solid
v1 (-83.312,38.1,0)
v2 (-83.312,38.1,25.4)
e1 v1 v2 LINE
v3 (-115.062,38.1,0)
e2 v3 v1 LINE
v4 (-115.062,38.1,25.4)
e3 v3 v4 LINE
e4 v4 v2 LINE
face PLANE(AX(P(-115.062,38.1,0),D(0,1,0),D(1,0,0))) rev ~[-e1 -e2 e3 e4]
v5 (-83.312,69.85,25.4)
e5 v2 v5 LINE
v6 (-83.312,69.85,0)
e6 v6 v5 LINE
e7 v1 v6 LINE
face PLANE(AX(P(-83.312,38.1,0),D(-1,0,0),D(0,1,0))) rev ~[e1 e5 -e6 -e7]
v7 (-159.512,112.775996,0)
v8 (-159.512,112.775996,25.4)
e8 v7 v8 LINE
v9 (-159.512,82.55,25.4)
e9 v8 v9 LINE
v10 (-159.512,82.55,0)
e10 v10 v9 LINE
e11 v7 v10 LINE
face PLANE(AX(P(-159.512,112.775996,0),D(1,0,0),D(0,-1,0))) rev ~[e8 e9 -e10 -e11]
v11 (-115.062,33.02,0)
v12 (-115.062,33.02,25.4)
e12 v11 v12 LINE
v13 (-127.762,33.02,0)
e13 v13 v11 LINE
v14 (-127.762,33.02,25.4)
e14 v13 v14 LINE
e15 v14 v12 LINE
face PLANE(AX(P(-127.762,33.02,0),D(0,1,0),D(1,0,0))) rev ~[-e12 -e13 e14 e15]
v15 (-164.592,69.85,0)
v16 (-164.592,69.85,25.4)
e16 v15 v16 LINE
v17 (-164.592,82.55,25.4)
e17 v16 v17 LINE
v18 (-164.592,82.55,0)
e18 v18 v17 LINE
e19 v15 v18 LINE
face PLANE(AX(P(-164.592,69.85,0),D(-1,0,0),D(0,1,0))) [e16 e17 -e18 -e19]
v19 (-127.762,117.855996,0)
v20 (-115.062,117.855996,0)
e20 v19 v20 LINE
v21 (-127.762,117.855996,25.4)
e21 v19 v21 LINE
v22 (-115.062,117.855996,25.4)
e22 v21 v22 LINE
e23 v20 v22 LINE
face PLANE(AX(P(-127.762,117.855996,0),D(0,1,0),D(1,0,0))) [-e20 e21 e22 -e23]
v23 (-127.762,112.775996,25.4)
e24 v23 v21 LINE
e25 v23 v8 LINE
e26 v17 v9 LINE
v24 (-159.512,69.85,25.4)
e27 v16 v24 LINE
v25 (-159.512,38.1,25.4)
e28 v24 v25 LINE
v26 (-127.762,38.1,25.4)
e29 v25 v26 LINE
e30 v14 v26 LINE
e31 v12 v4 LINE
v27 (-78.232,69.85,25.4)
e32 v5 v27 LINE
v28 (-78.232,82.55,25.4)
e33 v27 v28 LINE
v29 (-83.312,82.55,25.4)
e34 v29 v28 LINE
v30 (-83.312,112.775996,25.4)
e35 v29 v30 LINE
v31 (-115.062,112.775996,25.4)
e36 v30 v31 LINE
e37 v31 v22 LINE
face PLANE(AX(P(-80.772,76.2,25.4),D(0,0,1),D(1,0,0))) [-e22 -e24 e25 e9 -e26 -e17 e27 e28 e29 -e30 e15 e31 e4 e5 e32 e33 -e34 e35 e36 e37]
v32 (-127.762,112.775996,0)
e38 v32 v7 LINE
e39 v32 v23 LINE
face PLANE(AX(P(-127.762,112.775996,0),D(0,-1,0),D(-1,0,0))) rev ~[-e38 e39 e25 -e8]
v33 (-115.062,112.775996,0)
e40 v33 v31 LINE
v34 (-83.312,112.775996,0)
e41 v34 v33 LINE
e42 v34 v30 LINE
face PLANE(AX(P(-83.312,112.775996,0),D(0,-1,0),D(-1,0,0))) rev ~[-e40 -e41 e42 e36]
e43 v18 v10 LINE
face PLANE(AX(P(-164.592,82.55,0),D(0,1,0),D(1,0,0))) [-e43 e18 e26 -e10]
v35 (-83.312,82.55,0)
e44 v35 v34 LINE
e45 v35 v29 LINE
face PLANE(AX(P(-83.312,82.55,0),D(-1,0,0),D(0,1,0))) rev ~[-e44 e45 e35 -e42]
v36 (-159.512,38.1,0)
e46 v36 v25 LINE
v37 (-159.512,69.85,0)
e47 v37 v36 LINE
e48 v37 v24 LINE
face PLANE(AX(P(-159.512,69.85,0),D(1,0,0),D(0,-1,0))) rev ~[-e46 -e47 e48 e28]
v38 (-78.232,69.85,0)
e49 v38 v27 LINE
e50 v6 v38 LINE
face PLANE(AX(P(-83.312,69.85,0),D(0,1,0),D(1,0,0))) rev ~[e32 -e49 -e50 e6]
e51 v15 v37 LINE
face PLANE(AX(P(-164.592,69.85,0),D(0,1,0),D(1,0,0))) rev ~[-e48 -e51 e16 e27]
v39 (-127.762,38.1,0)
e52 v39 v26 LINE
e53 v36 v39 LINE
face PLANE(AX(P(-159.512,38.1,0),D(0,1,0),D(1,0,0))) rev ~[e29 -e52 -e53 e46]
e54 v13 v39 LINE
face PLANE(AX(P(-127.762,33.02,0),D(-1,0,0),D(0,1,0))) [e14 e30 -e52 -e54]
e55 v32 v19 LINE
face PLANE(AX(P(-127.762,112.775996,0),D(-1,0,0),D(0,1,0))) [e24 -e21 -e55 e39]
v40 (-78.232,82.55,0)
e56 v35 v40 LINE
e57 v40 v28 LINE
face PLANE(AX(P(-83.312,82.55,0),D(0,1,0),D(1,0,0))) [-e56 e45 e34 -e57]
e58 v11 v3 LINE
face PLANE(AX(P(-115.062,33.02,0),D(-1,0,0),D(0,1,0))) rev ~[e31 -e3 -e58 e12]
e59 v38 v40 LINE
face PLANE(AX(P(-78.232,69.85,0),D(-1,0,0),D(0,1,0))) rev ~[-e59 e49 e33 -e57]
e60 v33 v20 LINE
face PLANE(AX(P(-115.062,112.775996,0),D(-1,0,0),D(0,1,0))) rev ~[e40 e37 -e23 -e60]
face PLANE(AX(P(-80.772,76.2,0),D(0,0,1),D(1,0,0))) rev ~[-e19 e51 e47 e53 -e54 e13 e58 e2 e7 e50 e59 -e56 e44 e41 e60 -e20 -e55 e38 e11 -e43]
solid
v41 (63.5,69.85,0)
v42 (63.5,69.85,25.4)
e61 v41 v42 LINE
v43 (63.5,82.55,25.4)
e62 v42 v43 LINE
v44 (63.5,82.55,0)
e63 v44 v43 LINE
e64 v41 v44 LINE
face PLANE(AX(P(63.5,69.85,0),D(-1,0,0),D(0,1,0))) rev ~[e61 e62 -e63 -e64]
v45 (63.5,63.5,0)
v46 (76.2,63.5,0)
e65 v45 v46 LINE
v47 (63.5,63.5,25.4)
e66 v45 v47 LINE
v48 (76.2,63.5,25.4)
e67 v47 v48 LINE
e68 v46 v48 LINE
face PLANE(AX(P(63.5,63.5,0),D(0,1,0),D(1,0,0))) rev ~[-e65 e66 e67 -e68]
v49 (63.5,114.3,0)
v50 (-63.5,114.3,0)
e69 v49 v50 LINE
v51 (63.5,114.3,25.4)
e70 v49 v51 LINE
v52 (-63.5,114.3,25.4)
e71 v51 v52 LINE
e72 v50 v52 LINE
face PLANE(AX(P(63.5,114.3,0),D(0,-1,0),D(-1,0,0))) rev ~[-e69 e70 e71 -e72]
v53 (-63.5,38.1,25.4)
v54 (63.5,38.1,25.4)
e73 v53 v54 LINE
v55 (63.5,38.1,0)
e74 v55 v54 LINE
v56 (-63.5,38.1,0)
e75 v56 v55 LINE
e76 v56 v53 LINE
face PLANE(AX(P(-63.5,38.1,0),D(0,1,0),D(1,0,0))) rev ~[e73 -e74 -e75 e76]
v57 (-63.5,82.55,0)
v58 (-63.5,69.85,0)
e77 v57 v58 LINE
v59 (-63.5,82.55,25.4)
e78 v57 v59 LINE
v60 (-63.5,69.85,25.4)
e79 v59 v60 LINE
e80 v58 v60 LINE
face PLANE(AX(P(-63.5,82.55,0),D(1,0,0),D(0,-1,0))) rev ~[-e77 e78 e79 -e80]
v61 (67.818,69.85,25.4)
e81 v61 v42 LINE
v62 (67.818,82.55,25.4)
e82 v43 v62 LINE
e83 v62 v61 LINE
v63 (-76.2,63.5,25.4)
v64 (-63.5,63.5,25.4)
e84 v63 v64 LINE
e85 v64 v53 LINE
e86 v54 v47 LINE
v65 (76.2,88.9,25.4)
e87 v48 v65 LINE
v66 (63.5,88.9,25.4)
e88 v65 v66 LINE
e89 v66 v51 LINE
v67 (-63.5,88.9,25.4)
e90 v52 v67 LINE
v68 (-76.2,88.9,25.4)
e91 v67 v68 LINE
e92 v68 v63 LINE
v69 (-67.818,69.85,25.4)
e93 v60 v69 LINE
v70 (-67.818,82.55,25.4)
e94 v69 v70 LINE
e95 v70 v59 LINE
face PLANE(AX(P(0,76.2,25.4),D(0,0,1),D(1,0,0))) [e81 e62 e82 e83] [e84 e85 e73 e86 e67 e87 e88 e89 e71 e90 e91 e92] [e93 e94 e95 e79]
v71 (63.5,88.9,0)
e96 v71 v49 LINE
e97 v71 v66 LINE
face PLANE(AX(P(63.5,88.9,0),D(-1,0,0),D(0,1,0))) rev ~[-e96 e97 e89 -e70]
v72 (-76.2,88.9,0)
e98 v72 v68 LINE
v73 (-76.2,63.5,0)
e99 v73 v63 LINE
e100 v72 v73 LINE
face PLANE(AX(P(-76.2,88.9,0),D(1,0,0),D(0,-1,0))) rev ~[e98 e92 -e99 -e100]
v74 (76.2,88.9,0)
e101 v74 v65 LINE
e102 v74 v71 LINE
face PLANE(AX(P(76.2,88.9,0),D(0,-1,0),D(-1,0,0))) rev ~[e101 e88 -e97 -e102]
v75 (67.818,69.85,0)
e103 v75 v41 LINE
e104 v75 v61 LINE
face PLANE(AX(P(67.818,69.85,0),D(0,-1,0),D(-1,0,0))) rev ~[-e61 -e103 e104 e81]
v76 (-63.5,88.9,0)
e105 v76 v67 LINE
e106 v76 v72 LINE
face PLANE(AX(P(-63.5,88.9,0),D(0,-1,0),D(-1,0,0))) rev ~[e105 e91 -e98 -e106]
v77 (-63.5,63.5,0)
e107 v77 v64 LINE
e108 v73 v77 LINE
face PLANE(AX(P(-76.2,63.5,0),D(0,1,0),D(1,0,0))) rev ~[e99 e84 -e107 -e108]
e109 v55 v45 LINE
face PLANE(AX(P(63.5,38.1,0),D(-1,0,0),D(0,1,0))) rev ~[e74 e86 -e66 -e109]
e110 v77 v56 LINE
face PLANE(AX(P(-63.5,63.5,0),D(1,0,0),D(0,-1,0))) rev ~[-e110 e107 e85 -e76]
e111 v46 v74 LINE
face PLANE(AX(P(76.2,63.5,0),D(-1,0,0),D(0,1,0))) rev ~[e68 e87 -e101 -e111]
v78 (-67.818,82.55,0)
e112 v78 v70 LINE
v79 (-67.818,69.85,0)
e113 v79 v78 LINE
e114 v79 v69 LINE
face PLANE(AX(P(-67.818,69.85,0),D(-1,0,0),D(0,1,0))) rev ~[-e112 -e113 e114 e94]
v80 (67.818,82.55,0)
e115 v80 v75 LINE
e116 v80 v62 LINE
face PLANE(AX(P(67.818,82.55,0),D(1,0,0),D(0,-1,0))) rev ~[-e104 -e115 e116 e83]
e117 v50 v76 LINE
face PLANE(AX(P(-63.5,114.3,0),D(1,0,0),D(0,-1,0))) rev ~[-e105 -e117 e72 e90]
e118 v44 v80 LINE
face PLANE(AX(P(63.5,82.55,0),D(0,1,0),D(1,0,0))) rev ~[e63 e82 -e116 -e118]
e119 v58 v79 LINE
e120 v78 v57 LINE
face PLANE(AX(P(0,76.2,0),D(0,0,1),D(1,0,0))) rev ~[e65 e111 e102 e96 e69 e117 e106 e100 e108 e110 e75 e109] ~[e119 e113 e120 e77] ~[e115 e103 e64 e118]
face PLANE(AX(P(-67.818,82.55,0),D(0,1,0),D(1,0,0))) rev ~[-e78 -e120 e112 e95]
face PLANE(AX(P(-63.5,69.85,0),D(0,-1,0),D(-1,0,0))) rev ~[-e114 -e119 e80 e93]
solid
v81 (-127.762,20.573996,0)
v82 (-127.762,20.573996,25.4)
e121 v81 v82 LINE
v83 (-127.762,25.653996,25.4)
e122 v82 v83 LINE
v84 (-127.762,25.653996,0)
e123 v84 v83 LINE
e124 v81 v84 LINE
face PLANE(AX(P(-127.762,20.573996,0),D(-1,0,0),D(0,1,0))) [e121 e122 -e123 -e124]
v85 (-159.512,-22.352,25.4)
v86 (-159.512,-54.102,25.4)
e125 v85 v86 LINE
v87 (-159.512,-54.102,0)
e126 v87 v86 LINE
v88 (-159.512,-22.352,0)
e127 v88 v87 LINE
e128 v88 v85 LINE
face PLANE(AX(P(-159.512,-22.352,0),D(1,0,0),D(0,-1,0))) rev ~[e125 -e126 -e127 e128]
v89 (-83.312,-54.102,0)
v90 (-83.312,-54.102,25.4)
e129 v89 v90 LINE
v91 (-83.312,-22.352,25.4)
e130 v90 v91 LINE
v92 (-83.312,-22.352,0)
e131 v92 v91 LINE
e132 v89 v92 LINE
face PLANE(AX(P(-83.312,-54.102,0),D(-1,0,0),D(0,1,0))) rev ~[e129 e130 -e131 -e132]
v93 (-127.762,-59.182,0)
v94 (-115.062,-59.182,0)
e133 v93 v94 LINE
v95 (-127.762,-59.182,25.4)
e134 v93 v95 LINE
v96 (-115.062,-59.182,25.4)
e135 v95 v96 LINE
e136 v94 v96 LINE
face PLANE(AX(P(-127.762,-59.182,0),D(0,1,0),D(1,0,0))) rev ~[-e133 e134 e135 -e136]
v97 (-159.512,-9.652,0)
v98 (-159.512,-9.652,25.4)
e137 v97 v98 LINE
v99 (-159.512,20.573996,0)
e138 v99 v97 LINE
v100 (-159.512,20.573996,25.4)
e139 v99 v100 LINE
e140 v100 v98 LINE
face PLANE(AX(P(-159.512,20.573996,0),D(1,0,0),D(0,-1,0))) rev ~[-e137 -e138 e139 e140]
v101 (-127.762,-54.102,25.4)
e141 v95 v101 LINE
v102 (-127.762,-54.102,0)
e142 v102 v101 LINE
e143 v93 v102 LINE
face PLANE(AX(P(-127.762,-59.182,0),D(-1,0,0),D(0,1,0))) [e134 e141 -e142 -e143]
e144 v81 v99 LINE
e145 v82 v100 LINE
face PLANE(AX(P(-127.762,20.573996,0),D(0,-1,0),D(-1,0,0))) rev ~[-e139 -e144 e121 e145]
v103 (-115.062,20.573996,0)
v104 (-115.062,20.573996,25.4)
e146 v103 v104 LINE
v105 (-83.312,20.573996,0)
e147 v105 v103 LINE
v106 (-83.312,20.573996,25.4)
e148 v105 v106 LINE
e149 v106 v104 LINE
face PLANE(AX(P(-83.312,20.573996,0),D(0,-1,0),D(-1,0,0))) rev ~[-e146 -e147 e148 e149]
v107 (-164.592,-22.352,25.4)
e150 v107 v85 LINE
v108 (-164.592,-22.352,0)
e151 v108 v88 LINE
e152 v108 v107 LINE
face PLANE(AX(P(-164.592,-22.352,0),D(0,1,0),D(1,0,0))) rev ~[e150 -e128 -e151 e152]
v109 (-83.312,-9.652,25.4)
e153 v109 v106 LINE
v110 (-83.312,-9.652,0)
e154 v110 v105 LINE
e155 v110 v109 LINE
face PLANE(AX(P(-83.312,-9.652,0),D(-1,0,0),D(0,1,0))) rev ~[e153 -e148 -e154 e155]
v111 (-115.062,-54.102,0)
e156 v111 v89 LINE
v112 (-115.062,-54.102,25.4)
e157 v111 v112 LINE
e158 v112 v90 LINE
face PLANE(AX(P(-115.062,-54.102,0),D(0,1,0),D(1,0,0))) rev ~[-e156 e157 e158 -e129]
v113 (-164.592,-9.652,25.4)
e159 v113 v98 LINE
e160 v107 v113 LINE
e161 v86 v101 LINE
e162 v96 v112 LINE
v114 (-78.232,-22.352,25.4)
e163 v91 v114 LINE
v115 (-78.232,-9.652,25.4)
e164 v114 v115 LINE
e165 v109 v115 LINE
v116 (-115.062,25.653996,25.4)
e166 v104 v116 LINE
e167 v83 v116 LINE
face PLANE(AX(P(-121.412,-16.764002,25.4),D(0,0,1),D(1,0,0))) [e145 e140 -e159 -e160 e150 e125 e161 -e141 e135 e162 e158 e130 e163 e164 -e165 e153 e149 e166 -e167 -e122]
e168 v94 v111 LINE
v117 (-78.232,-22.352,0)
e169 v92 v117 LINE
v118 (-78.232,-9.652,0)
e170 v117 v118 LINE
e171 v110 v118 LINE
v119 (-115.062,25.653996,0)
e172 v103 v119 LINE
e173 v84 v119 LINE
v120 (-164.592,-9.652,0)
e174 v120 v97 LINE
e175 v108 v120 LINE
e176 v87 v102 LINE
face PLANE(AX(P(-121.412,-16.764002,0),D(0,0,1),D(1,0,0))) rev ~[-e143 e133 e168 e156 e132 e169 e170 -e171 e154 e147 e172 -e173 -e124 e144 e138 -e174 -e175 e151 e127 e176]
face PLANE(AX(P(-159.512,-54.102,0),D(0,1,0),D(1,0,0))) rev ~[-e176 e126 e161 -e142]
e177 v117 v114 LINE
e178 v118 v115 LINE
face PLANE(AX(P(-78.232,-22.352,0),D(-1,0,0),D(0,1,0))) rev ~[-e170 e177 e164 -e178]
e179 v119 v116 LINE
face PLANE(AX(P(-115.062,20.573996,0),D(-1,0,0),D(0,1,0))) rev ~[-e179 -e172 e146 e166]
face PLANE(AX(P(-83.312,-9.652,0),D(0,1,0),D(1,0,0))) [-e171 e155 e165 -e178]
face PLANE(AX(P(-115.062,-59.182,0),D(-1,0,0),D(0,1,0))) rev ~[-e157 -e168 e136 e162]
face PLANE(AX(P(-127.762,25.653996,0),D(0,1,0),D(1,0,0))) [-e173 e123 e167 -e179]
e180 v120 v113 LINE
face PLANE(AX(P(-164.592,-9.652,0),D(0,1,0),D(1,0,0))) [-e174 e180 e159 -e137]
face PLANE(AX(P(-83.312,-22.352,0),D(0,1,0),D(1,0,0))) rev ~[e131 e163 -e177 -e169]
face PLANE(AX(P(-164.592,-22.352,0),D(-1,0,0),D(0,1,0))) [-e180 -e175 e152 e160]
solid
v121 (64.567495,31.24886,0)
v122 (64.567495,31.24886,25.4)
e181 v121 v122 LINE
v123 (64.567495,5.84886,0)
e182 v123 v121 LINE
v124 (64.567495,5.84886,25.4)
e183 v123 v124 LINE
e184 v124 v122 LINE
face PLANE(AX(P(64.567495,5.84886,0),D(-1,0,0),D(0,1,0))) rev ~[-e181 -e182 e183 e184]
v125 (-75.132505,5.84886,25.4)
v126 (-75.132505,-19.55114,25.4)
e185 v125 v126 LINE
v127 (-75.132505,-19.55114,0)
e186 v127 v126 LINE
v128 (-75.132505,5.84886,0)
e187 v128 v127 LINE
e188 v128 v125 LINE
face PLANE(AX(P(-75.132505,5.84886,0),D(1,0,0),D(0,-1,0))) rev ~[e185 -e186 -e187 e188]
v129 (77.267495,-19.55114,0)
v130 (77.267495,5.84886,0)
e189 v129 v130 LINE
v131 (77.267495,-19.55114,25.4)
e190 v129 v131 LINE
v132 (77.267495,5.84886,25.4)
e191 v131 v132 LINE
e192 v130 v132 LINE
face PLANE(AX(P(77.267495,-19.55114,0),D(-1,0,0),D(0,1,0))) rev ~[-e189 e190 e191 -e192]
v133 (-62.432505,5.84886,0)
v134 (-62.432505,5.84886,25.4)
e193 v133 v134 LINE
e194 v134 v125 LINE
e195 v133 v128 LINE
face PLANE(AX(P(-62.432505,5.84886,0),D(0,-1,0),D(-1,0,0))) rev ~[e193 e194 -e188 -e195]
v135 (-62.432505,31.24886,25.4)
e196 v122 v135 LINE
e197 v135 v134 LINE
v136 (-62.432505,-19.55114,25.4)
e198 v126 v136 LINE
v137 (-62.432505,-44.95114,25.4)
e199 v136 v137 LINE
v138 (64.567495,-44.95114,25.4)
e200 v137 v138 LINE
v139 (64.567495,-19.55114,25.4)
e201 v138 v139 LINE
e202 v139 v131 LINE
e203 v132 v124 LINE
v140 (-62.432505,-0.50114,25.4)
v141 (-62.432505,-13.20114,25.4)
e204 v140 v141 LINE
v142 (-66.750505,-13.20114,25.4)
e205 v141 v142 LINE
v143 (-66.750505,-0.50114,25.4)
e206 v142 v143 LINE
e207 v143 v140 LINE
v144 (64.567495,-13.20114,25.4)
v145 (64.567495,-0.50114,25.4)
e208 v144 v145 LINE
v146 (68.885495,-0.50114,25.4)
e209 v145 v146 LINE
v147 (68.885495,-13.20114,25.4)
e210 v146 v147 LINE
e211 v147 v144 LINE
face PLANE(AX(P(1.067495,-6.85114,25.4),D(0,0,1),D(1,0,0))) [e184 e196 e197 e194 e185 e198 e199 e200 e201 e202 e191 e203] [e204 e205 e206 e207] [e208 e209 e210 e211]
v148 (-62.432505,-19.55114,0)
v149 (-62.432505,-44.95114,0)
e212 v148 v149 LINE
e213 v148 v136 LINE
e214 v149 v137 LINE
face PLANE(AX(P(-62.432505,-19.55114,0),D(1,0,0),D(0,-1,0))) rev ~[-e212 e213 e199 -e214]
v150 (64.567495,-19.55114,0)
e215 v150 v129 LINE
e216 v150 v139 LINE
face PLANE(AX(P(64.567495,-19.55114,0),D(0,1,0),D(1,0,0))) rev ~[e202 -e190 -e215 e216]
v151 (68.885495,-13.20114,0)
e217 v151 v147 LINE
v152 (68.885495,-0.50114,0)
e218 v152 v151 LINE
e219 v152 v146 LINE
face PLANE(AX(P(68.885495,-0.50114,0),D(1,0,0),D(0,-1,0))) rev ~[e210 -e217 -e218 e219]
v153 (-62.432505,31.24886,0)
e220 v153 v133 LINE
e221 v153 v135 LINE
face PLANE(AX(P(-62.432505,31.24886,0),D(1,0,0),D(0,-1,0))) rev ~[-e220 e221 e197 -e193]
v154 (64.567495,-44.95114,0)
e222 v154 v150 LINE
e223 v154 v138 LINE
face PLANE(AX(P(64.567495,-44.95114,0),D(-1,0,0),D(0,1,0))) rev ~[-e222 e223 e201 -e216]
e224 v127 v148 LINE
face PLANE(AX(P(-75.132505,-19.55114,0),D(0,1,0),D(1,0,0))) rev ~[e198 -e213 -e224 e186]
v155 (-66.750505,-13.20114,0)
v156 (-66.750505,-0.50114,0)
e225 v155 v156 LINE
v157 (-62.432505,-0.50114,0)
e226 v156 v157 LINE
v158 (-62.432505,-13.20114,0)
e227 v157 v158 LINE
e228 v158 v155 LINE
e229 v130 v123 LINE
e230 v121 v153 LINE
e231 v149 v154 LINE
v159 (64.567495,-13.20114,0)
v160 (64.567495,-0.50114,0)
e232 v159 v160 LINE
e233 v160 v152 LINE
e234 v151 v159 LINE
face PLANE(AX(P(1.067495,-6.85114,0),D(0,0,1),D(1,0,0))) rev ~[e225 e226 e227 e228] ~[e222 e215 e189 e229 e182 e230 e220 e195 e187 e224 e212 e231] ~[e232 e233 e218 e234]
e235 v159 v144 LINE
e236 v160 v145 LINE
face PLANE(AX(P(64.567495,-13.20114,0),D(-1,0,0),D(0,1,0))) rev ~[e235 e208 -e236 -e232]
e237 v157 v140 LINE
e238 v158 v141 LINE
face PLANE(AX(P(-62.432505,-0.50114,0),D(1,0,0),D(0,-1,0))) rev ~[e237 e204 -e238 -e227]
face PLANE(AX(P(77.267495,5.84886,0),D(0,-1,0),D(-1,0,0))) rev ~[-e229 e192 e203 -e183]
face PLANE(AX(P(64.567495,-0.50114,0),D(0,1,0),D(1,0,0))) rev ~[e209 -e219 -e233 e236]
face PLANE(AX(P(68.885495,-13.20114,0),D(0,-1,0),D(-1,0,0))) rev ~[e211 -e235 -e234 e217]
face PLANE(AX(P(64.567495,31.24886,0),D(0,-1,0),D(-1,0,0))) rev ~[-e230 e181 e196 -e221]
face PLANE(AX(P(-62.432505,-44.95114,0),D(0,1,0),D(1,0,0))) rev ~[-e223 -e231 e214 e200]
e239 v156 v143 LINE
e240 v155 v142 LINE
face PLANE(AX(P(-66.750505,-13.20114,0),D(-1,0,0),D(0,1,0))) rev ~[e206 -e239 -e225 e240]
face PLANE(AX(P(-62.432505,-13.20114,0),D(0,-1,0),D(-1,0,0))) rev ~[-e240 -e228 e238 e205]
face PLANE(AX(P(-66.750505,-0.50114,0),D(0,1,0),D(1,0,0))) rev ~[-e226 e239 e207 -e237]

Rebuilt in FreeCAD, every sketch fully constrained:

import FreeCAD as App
import Part
import Sketcher
Q = App.Units.Quantity

doc = App.newDocument("Part")
body = doc.addObject("PartDesign::Body", "Body")
body.AllowCompound = True

sketch1 = body.newObject("Sketcher::SketchObject", "Sketch")
sketch1.AttachmentSupport = (doc.getObject("XY_Plane"), [""])
sketch1.MapMode = "FlatFace"
sketch1.addGeometry(Part.LineSegment(App.Vector(-63.5, 38.1, 0), App.Vector(63.5, 38.1, 0)), False)
sketch1.addGeometry(Part.LineSegment(App.Vector(63.5, 38.1, 0), App.Vector(63.5, 63.5, 0)), False)
sketch1.addGeometry(Part.LineSegment(App.Vector(63.5, 63.5, 0), App.Vector(76.2, 63.5, 0)), False)
sketch1.addGeometry(Part.LineSegment(App.Vector(76.2, 63.5, 0), App.Vector(76.2, 88.9, 0)), False)
sketch1.addGeometry(Part.LineSegment(App.Vector(76.2, 88.9, 0), App.Vector(63.5, 88.9, 0)), False)
sketch1.addGeometry(Part.LineSegment(App.Vector(63.5, 88.9, 0), App.Vector(63.5, 114.3, 0)), False)
sketch1.addGeometry(Part.LineSegment(App.Vector(63.5, 114.3, 0), App.Vector(-63.5, 114.3, 0)), False)
sketch1.addGeometry(Part.LineSegment(App.Vector(-63.5, 114.3, 0), App.Vector(-63.5, 88.9, 0)), False)
sketch1.addGeometry(Part.LineSegment(App.Vector(-63.5, 88.9, 0), App.Vector(-76.2, 88.9, 0)), False)
sketch1.addGeometry(Part.LineSegment(App.Vector(-76.2, 88.9, 0), App.Vector(-76.2, 63.5, 0)), False)
sketch1.addGeometry(Part.LineSegment(App.Vector(-76.2, 63.5, 0), App.Vector(-63.5, 63.5, 0)), False)
sketch1.addGeometry(Part.LineSegment(App.Vector(-63.5, 63.5, 0), App.Vector(-63.5, 38.1, 0)), False)
sketch1.addGeometry(Part.LineSegment(App.Vector(63.5, 69.8, 0), App.Vector(63.5, 82.5, 0)), False)
sketch1.addGeometry(Part.LineSegment(App.Vector(63.5, 82.5, 0), App.Vector(67.8, 82.5, 0)), False)
sketch1.addGeometry(Part.LineSegment(App.Vector(67.8, 82.5, 0), App.Vector(67.8, 69.8, 0)), False)
sketch1.addGeometry(Part.LineSegment(App.Vector(67.8, 69.8, 0), App.Vector(63.5, 69.8, 0)), False)
sketch1.addGeometry(Part.LineSegment(App.Vector(-63.5, 82.5, 0), App.Vector(-63.5, 69.8, 0)), False)
sketch1.addGeometry(Part.LineSegment(App.Vector(-63.5, 69.8, 0), App.Vector(-67.8, 69.8, 0)), False)
sketch1.addGeometry(Part.LineSegment(App.Vector(-67.8, 69.8, 0), App.Vector(-67.8, 82.5, 0)), False)
sketch1.addGeometry(Part.LineSegment(App.Vector(-67.8, 82.5, 0), App.Vector(-63.5, 82.5, 0)), False)
sketch1.addGeometry(Part.LineSegment(App.Vector(-83.3, 69.8, 0), App.Vector(-78.2, 69.8, 0)), False)
sketch1.addGeometry(Part.LineSegment(App.Vector(-78.2, 69.8, 0), App.Vector(-78.2, 82.5, 0)), False)
sketch1.addGeometry(Part.LineSegment(App.Vector(-78.2, 82.5, 0), App.Vector(-83.3, 82.5, 0)), False)
sketch1.addGeometry(Part.LineSegment(App.Vector(-83.3, 82.5, 0), App.Vector(-83.3, 112.8, 0)), False)
sketch1.addGeometry(Part.LineSegment(App.Vector(-83.3, 112.8, 0), App.Vector(-115.1, 112.8, 0)), False)
sketch1.addGeometry(Part.LineSegment(App.Vector(-115.1, 112.8, 0), App.Vector(-115.1, 117.9, 0)), False)
sketch1.addGeometry(Part.LineSegment(App.Vector(-115.1, 117.9, 0), App.Vector(-127.8, 117.9, 0)), False)
sketch1.addGeometry(Part.LineSegment(App.Vector(-127.8, 117.9, 0), App.Vector(-127.8, 112.8, 0)), False)
sketch1.addGeometry(Part.LineSegment(App.Vector(-127.8, 112.8, 0), App.Vector(-159.5, 112.8, 0)), False)
sketch1.addGeometry(Part.LineSegment(App.Vector(-159.5, 112.8, 0), App.Vector(-159.5, 82.5, 0)), False)
sketch1.addGeometry(Part.LineSegment(App.Vector(-159.5, 82.5, 0), App.Vector(-164.6, 82.5, 0)), False)
sketch1.addGeometry(Part.LineSegment(App.Vector(-164.6, 82.5, 0), App.Vector(-164.6, 69.8, 0)), False)
sketch1.addGeometry(Part.LineSegment(App.Vector(-164.6, 69.8, 0), App.Vector(-159.5, 69.8, 0)), False)
sketch1.addGeometry(Part.LineSegment(App.Vector(-159.5, 69.8, 0), App.Vector(-159.5, 38.1, 0)), False)
sketch1.addGeometry(Part.LineSegment(App.Vector(-159.5, 38.1, 0), App.Vector(-127.8, 38.1, 0)), False)
sketch1.addGeometry(Part.LineSegment(App.Vector(-127.8, 38.1, 0), App.Vector(-127.8, 33, 0)), False)
sketch1.addGeometry(Part.LineSegment(App.Vector(-127.8, 33, 0), App.Vector(-115.1, 33, 0)), False)
sketch1.addGeometry(Part.LineSegment(App.Vector(-115.1, 33, 0), App.Vector(-115.1, 38.1, 0)), False)
sketch1.addGeometry(Part.LineSegment(App.Vector(-115.1, 38.1, 0), App.Vector(-83.3, 38.1, 0)), False)
sketch1.addGeometry(Part.LineSegment(App.Vector(-83.3, 38.1, 0), App.Vector(-83.3, 69.8, 0)), False)
sketch1.addGeometry(Part.LineSegment(App.Vector(-62.4, -45, 0), App.Vector(64.6, -45, 0)), False)
sketch1.addGeometry(Part.LineSegment(App.Vector(64.6, -45, 0), App.Vector(64.6, -19.6, 0)), False)
sketch1.addGeometry(Part.LineSegment(App.Vector(64.6, -19.6, 0), App.Vector(77.3, -19.6, 0)), False)
sketch1.addGeometry(Part.LineSegment(App.Vector(77.3, -19.6, 0), App.Vector(77.3, 5.8, 0)), False)
sketch1.addGeometry(Part.LineSegment(App.Vector(77.3, 5.8, 0), App.Vector(64.6, 5.8, 0)), False)
sketch1.addGeometry(Part.LineSegment(App.Vector(64.6, 5.8, 0), App.Vector(64.6, 31.2, 0)), False)
sketch1.addGeometry(Part.LineSegment(App.Vector(64.6, 31.2, 0), App.Vector(-62.4, 31.2, 0)), False)
sketch1.addGeometry(Part.LineSegment(App.Vector(-62.4, 31.2, 0), App.Vector(-62.4, 5.8, 0)), False)
sketch1.addGeometry(Part.LineSegment(App.Vector(-62.4, 5.8, 0), App.Vector(-75.1, 5.8, 0)), False)
sketch1.addGeometry(Part.LineSegment(App.Vector(-75.1, 5.8, 0), App.Vector(-75.1, -19.6, 0)), False)
sketch1.addGeometry(Part.LineSegment(App.Vector(-75.1, -19.6, 0), App.Vector(-62.4, -19.6, 0)), False)
sketch1.addGeometry(Part.LineSegment(App.Vector(-62.4, -19.6, 0), App.Vector(-62.4, -45, 0)), False)
sketch1.addGeometry(Part.LineSegment(App.Vector(64.6, -13.2, 0), App.Vector(64.6, -0.5, 0)), False)
sketch1.addGeometry(Part.LineSegment(App.Vector(64.6, -0.5, 0), App.Vector(68.9, -0.5, 0)), False)
sketch1.addGeometry(Part.LineSegment(App.Vector(68.9, -0.5, 0), App.Vector(68.9, -13.2, 0)), False)
sketch1.addGeometry(Part.LineSegment(App.Vector(68.9, -13.2, 0), App.Vector(64.6, -13.2, 0)), False)
sketch1.addGeometry(Part.LineSegment(App.Vector(-62.4, -0.5, 0), App.Vector(-62.4, -13.2, 0)), False)
sketch1.addGeometry(Part.LineSegment(App.Vector(-62.4, -13.2, 0), App.Vector(-66.8, -13.2, 0)), False)
sketch1.addGeometry(Part.LineSegment(App.Vector(-66.8, -13.2, 0), App.Vector(-66.8, -0.5, 0)), False)
sketch1.addGeometry(Part.LineSegment(App.Vector(-66.8, -0.5, 0), App.Vector(-62.4, -0.5, 0)), False)
sketch1.addGeometry(Part.LineSegment(App.Vector(-83.3, -54.1, 0), App.Vector(-83.3, -22.4, 0)), False)
sketch1.addGeometry(Part.LineSegment(App.Vector(-83.3, -22.4, 0), App.Vector(-78.2, -22.4, 0)), False)
sketch1.addGeometry(Part.LineSegment(App.Vector(-78.2, -22.4, 0), App.Vector(-78.2, -9.7, 0)), False)
sketch1.addGeometry(Part.LineSegment(App.Vector(-78.2, -9.7, 0), App.Vector(-83.3, -9.7, 0)), False)
sketch1.addGeometry(Part.LineSegment(App.Vector(-83.3, -9.7, 0), App.Vector(-83.3, 20.6, 0)), False)
sketch1.addGeometry(Part.LineSegment(App.Vector(-83.3, 20.6, 0), App.Vector(-115.1, 20.6, 0)), False)
sketch1.addGeometry(Part.LineSegment(App.Vector(-115.1, 20.6, 0), App.Vector(-115.1, 25.7, 0)), False)
sketch1.addGeometry(Part.LineSegment(App.Vector(-115.1, 25.7, 0), App.Vector(-127.8, 25.7, 0)), False)
sketch1.addGeometry(Part.LineSegment(App.Vector(-127.8, 25.7, 0), App.Vector(-127.8, 20.6, 0)), False)
sketch1.addGeometry(Part.LineSegment(App.Vector(-127.8, 20.6, 0), App.Vector(-159.5, 20.6, 0)), False)
sketch1.addGeometry(Part.LineSegment(App.Vector(-159.5, 20.6, 0), App.Vector(-159.5, -9.7, 0)), False)
sketch1.addGeometry(Part.LineSegment(App.Vector(-159.5, -9.7, 0), App.Vector(-164.6, -9.7, 0)), False)
sketch1.addGeometry(Part.LineSegment(App.Vector(-164.6, -9.7, 0), App.Vector(-164.6, -22.4, 0)), False)
sketch1.addGeometry(Part.LineSegment(App.Vector(-164.6, -22.4, 0), App.Vector(-159.5, -22.4, 0)), False)
sketch1.addGeometry(Part.LineSegment(App.Vector(-159.5, -22.4, 0), App.Vector(-159.5, -54.1, 0)), False)
sketch1.addGeometry(Part.LineSegment(App.Vector(-159.5, -54.1, 0), App.Vector(-127.8, -54.1, 0)), False)
sketch1.addGeometry(Part.LineSegment(App.Vector(-127.8, -54.1, 0), App.Vector(-127.8, -59.2, 0)), False)
sketch1.addGeometry(Part.LineSegment(App.Vector(-127.8, -59.2, 0), App.Vector(-115.1, -59.2, 0)), False)
sketch1.addGeometry(Part.LineSegment(App.Vector(-115.1, -59.2, 0), App.Vector(-115.1, -54.1, 0)), False)
sketch1.addGeometry(Part.LineSegment(App.Vector(-115.1, -54.1, 0), App.Vector(-83.3, -54.1, 0)), False)
sketch1.addConstraint(Sketcher.Constraint("Coincident", 0, 2, 1, 1))
sketch1.addConstraint(Sketcher.Constraint("Coincident", 1, 2, 2, 1))
sketch1.addConstraint(Sketcher.Constraint("Coincident", 2, 2, 3, 1))
sketch1.addConstraint(Sketcher.Constraint("Coincident", 3, 2, 4, 1))
sketch1.addConstraint(Sketcher.Constraint("Coincident", 4, 2, 5, 1))
sketch1.addConstraint(Sketcher.Constraint("Coincident", 5, 2, 6, 1))
sketch1.addConstraint(Sketcher.Constraint("Coincident", 6, 2, 7, 1))
sketch1.addConstraint(Sketcher.Constraint("Coincident", 7, 2, 8, 1))
sketch1.addConstraint(Sketcher.Constraint("Coincident", 8, 2, 9, 1))
sketch1.addConstraint(Sketcher.Constraint("Coincident", 9, 2, 10, 1))
sketch1.addConstraint(Sketcher.Constraint("Coincident", 10, 2, 11, 1))
sketch1.addConstraint(Sketcher.Constraint("Coincident", 11, 2, 0, 1))
sketch1.addConstraint(Sketcher.Constraint("Coincident", 12, 2, 13, 1))
sketch1.addConstraint(Sketcher.Constraint("Coincident", 13, 2, 14, 1))
sketch1.addConstraint(Sketcher.Constraint("Coincident", 14, 2, 15, 1))
sketch1.addConstraint(Sketcher.Constraint("Coincident", 15, 2, 12, 1))
sketch1.addConstraint(Sketcher.Constraint("Coincident", 16, 2, 17, 1))
sketch1.addConstraint(Sketcher.Constraint("Coincident", 17, 2, 18, 1))
sketch1.addConstraint(Sketcher.Constraint("Coincident", 18, 2, 19, 1))
sketch1.addConstraint(Sketcher.Constraint("Coincident", 19, 2, 16, 1))
sketch1.addConstraint(Sketcher.Constraint("Coincident", 20, 2, 21, 1))
sketch1.addConstraint(Sketcher.Constraint("Coincident", 21, 2, 22, 1))
sketch1.addConstraint(Sketcher.Constraint("Coincident", 22, 2, 23, 1))
sketch1.addConstraint(Sketcher.Constraint("Coincident", 23, 2, 24, 1))
sketch1.addConstraint(Sketcher.Constraint("Coincident", 24, 2, 25, 1))
sketch1.addConstraint(Sketcher.Constraint("Coincident", 25, 2, 26, 1))
sketch1.addConstraint(Sketcher.Constraint("Coincident", 26, 2, 27, 1))
sketch1.addConstraint(Sketcher.Constraint("Coincident", 27, 2, 28, 1))
sketch1.addConstraint(Sketcher.Constraint("Coincident", 28, 2, 29, 1))
sketch1.addConstraint(Sketcher.Constraint("Coincident", 29, 2, 30, 1))
sketch1.addConstraint(Sketcher.Constraint("Coincident", 30, 2, 31, 1))
sketch1.addConstraint(Sketcher.Constraint("Coincident", 31, 2, 32, 1))
sketch1.addConstraint(Sketcher.Constraint("Coincident", 32, 2, 33, 1))
sketch1.addConstraint(Sketcher.Constraint("Coincident", 33, 2, 34, 1))
sketch1.addConstraint(Sketcher.Constraint("Coincident", 34, 2, 35, 1))
sketch1.addConstraint(Sketcher.Constraint("Coincident", 35, 2, 36, 1))
sketch1.addConstraint(Sketcher.Constraint("Coincident", 36, 2, 37, 1))
sketch1.addConstraint(Sketcher.Constraint("Coincident", 37, 2, 38, 1))
sketch1.addConstraint(Sketcher.Constraint("Coincident", 38, 2, 39, 1))
sketch1.addConstraint(Sketcher.Constraint("Coincident", 39, 2, 20, 1))
sketch1.addConstraint(Sketcher.Constraint("Coincident", 40, 2, 41, 1))
sketch1.addConstraint(Sketcher.Constraint("Coincident", 41, 2, 42, 1))
sketch1.addConstraint(Sketcher.Constraint("Coincident", 42, 2, 43, 1))
sketch1.addConstraint(Sketcher.Constraint("Coincident", 43, 2, 44, 1))
sketch1.addConstraint(Sketcher.Constraint("Coincident", 44, 2, 45, 1))
sketch1.addConstraint(Sketcher.Constraint("Coincident", 45, 2, 46, 1))
sketch1.addConstraint(Sketcher.Constraint("Coincident", 46, 2, 47, 1))
sketch1.addConstraint(Sketcher.Constraint("Coincident", 47, 2, 48, 1))
sketch1.addConstraint(Sketcher.Constraint("Coincident", 48, 2, 49, 1))
sketch1.addConstraint(Sketcher.Constraint("Coincident", 49, 2, 50, 1))
sketch1.addConstraint(Sketcher.Constraint("Coincident", 50, 2, 51, 1))
sketch1.addConstraint(Sketcher.Constraint("Coincident", 51, 2, 40, 1))
sketch1.addConstraint(Sketcher.Constraint("Coincident", 52, 2, 53, 1))
sketch1.addConstraint(Sketcher.Constraint("Coincident", 53, 2, 54, 1))
sketch1.addConstraint(Sketcher.Constraint("Coincident", 54, 2, 55, 1))
sketch1.addConstraint(Sketcher.Constraint("Coincident", 55, 2, 52, 1))
sketch1.addConstraint(Sketcher.Constraint("Coincident", 56, 2, 57, 1))
sketch1.addConstraint(Sketcher.Constraint("Coincident", 57, 2, 58, 1))
sketch1.addConstraint(Sketcher.Constraint("Coincident", 58, 2, 59, 1))
sketch1.addConstraint(Sketcher.Constraint("Coincident", 59, 2, 56, 1))
sketch1.addConstraint(Sketcher.Constraint("Coincident", 60, 2, 61, 1))
sketch1.addConstraint(Sketcher.Constraint("Coincident", 61, 2, 62, 1))
sketch1.addConstraint(Sketcher.Constraint("Coincident", 62, 2, 63, 1))
sketch1.addConstraint(Sketcher.Constraint("Coincident", 63, 2, 64, 1))
sketch1.addConstraint(Sketcher.Constraint("Coincident", 64, 2, 65, 1))
sketch1.addConstraint(Sketcher.Constraint("Coincident", 65, 2, 66, 1))
sketch1.addConstraint(Sketcher.Constraint("Coincident", 66, 2, 67, 1))
sketch1.addConstraint(Sketcher.Constraint("Coincident", 67, 2, 68, 1))
sketch1.addConstraint(Sketcher.Constraint("Coincident", 68, 2, 69, 1))
sketch1.addConstraint(Sketcher.Constraint("Coincident", 69, 2, 70, 1))
sketch1.addConstraint(Sketcher.Constraint("Coincident", 70, 2, 71, 1))
sketch1.addConstraint(Sketcher.Constraint("Coincident", 71, 2, 72, 1))
sketch1.addConstraint(Sketcher.Constraint("Coincident", 72, 2, 73, 1))
sketch1.addConstraint(Sketcher.Constraint("Coincident", 73, 2, 74, 1))
sketch1.addConstraint(Sketcher.Constraint("Coincident", 74, 2, 75, 1))
sketch1.addConstraint(Sketcher.Constraint("Coincident", 75, 2, 76, 1))
sketch1.addConstraint(Sketcher.Constraint("Coincident", 76, 2, 77, 1))
sketch1.addConstraint(Sketcher.Constraint("Coincident", 77, 2, 78, 1))
sketch1.addConstraint(Sketcher.Constraint("Coincident", 78, 2, 79, 1))
sketch1.addConstraint(Sketcher.Constraint("Coincident", 79, 2, 60, 1))
sketch1.addConstraint(Sketcher.Constraint("Horizontal", 0))
sketch1.addConstraint(Sketcher.Constraint("Vertical", 1))
sketch1.addConstraint(Sketcher.Constraint("Horizontal", 2))
sketch1.addConstraint(Sketcher.Constraint("Vertical", 3))
sketch1.addConstraint(Sketcher.Constraint("Horizontal", 4))
sketch1.addConstraint(Sketcher.Constraint("Vertical", 5))
sketch1.addConstraint(Sketcher.Constraint("Horizontal", 6))
sketch1.addConstraint(Sketcher.Constraint("Vertical", 7))
sketch1.addConstraint(Sketcher.Constraint("Horizontal", 8))
sketch1.addConstraint(Sketcher.Constraint("Vertical", 9))
sketch1.addConstraint(Sketcher.Constraint("Horizontal", 10))
sketch1.addConstraint(Sketcher.Constraint("Vertical", 11))
sketch1.addConstraint(Sketcher.Constraint("Vertical", 12))
sketch1.addConstraint(Sketcher.Constraint("Horizontal", 13))
sketch1.addConstraint(Sketcher.Constraint("Vertical", 14))
sketch1.addConstraint(Sketcher.Constraint("Horizontal", 15))
sketch1.addConstraint(Sketcher.Constraint("Vertical", 16))
sketch1.addConstraint(Sketcher.Constraint("Horizontal", 17))
sketch1.addConstraint(Sketcher.Constraint("Vertical", 18))
sketch1.addConstraint(Sketcher.Constraint("Horizontal", 19))
sketch1.addConstraint(Sketcher.Constraint("Horizontal", 20))
sketch1.addConstraint(Sketcher.Constraint("Vertical", 21))
sketch1.addConstraint(Sketcher.Constraint("Horizontal", 22))
sketch1.addConstraint(Sketcher.Constraint("Vertical", 23))
sketch1.addConstraint(Sketcher.Constraint("Horizontal", 24))
sketch1.addConstraint(Sketcher.Constraint("Vertical", 25))
sketch1.addConstraint(Sketcher.Constraint("Horizontal", 26))
sketch1.addConstraint(Sketcher.Constraint("Vertical", 27))
sketch1.addConstraint(Sketcher.Constraint("Horizontal", 28))
sketch1.addConstraint(Sketcher.Constraint("Vertical", 29))
sketch1.addConstraint(Sketcher.Constraint("Horizontal", 30))
sketch1.addConstraint(Sketcher.Constraint("Vertical", 31))
sketch1.addConstraint(Sketcher.Constraint("Horizontal", 32))
sketch1.addConstraint(Sketcher.Constraint("Vertical", 33))
sketch1.addConstraint(Sketcher.Constraint("Horizontal", 34))
sketch1.addConstraint(Sketcher.Constraint("Vertical", 35))
sketch1.addConstraint(Sketcher.Constraint("Horizontal", 36))
sketch1.addConstraint(Sketcher.Constraint("Vertical", 37))
sketch1.addConstraint(Sketcher.Constraint("Horizontal", 38))
sketch1.addConstraint(Sketcher.Constraint("Vertical", 39))
sketch1.addConstraint(Sketcher.Constraint("Horizontal", 40))
sketch1.addConstraint(Sketcher.Constraint("Vertical", 41))
sketch1.addConstraint(Sketcher.Constraint("Horizontal", 42))
sketch1.addConstraint(Sketcher.Constraint("Vertical", 43))
sketch1.addConstraint(Sketcher.Constraint("Horizontal", 44))
sketch1.addConstraint(Sketcher.Constraint("Vertical", 45))
sketch1.addConstraint(Sketcher.Constraint("Horizontal", 46))
sketch1.addConstraint(Sketcher.Constraint("Vertical", 47))
sketch1.addConstraint(Sketcher.Constraint("Horizontal", 48))
sketch1.addConstraint(Sketcher.Constraint("Vertical", 49))
sketch1.addConstraint(Sketcher.Constraint("Horizontal", 50))
sketch1.addConstraint(Sketcher.Constraint("Vertical", 51))
sketch1.addConstraint(Sketcher.Constraint("Vertical", 52))
sketch1.addConstraint(Sketcher.Constraint("Horizontal", 53))
sketch1.addConstraint(Sketcher.Constraint("Vertical", 54))
sketch1.addConstraint(Sketcher.Constraint("Horizontal", 55))
sketch1.addConstraint(Sketcher.Constraint("Vertical", 56))
sketch1.addConstraint(Sketcher.Constraint("Horizontal", 57))
sketch1.addConstraint(Sketcher.Constraint("Vertical", 58))
sketch1.addConstraint(Sketcher.Constraint("Horizontal", 59))
sketch1.addConstraint(Sketcher.Constraint("Vertical", 60))
sketch1.addConstraint(Sketcher.Constraint("Horizontal", 61))
sketch1.addConstraint(Sketcher.Constraint("Vertical", 62))
sketch1.addConstraint(Sketcher.Constraint("Horizontal", 63))
sketch1.addConstraint(Sketcher.Constraint("Vertical", 64))
sketch1.addConstraint(Sketcher.Constraint("Horizontal", 65))
sketch1.addConstraint(Sketcher.Constraint("Vertical", 66))
sketch1.addConstraint(Sketcher.Constraint("Horizontal", 67))
sketch1.addConstraint(Sketcher.Constraint("Vertical", 68))
sketch1.addConstraint(Sketcher.Constraint("Horizontal", 69))
sketch1.addConstraint(Sketcher.Constraint("Vertical", 70))
sketch1.addConstraint(Sketcher.Constraint("Horizontal", 71))
sketch1.addConstraint(Sketcher.Constraint("Vertical", 72))
sketch1.addConstraint(Sketcher.Constraint("Horizontal", 73))
sketch1.addConstraint(Sketcher.Constraint("Vertical", 74))
sketch1.addConstraint(Sketcher.Constraint("Horizontal", 75))
sketch1.addConstraint(Sketcher.Constraint("Vertical", 76))
sketch1.addConstraint(Sketcher.Constraint("Horizontal", 77))
sketch1.addConstraint(Sketcher.Constraint("Vertical", 78))
sketch1.addConstraint(Sketcher.Constraint("Horizontal", 79))
sketch1.addConstraint(Sketcher.Constraint("Symmetric", 4, 2, 7, 2, -2))
sketch1.addConstraint(Sketcher.Constraint("Symmetric", 2, 2, 9, 2, -2))
sketch1.addConstraint(Sketcher.Constraint("Symmetric", 15, 2, 16, 2, -2))
sketch1.addConstraint(Sketcher.Constraint("Symmetric", 13, 2, 18, 2, -2))
sketch1.addConstraint(Sketcher.Constraint("Horizontal", 17, 2, 20, 2))
sketch1.addConstraint(Sketcher.Constraint("Horizontal", 19, 2, 21, 2))
sketch1.addConstraint(Sketcher.Constraint("Horizontal", 24, 2, 27, 2))
sketch1.addConstraint(Sketcher.Constraint("Horizontal", 22, 2, 29, 2))
sketch1.addConstraint(Sketcher.Constraint("Horizontal", 20, 2, 31, 2))
sketch1.addConstraint(Sketcher.Constraint("Horizontal", 11, 2, 33, 2))
sketch1.addConstraint(Sketcher.Constraint("Horizontal", 34, 2, 37, 2))
sketch1.addConstraint(Sketcher.Constraint("Horizontal", 44, 2, 47, 2))
sketch1.addConstraint(Sketcher.Constraint("Horizontal", 42, 2, 49, 2))
sketch1.addConstraint(Sketcher.Constraint("Horizontal", 55, 2, 56, 2))
sketch1.addConstraint(Sketcher.Constraint("Horizontal", 53, 2, 58, 2))
sketch1.addConstraint(Sketcher.Constraint("Horizontal", 65, 2, 68, 2))
sketch1.addConstraint(Sketcher.Constraint("Horizontal", 63, 2, 70, 2))
sketch1.addConstraint(Sketcher.Constraint("Horizontal", 61, 2, 72, 2))
sketch1.addConstraint(Sketcher.Constraint("Horizontal", 75, 2, 78, 2))
sketch1.addConstraint(Sketcher.Constraint("Vertical", 1, 2, 4, 2))
sketch1.addConstraint(Sketcher.Constraint("Vertical", 7, 2, 10, 2))
sketch1.addConstraint(Sketcher.Constraint("Vertical", 5, 2, 12, 2))
sketch1.addConstraint(Sketcher.Constraint("Vertical", 29, 2, 32, 2))
sketch1.addConstraint(Sketcher.Constraint("Vertical", 27, 2, 34, 2))
sketch1.addConstraint(Sketcher.Constraint("Vertical", 25, 2, 36, 2))
sketch1.addConstraint(Sketcher.Constraint("Vertical", 23, 2, 38, 2))
sketch1.addConstraint(Sketcher.Constraint("Vertical", 41, 2, 44, 2))
sketch1.addConstraint(Sketcher.Constraint("Vertical", 47, 2, 50, 2))
sketch1.addConstraint(Sketcher.Constraint("Vertical", 45, 2, 52, 2))
sketch1.addConstraint(Sketcher.Constraint("Vertical", 51, 2, 56, 2))
sketch1.addConstraint(Sketcher.Constraint("Vertical", 39, 2, 60, 2))
sketch1.addConstraint(Sketcher.Constraint("Vertical", 21, 2, 61, 2))
sketch1.addConstraint(Sketcher.Constraint("Vertical", 60, 2, 63, 2))
sketch1.addConstraint(Sketcher.Constraint("Vertical", 37, 2, 65, 2))
sketch1.addConstraint(Sketcher.Constraint("Vertical", 35, 2, 67, 2))
sketch1.addConstraint(Sketcher.Constraint("Vertical", 33, 2, 69, 2))
sketch1.addConstraint(Sketcher.Constraint("Vertical", 31, 2, 71, 2))
sketch1.addConstraint(Sketcher.Constraint("Vertical", 70, 2, 73, 2))
sketch1.addConstraint(Sketcher.Constraint("Vertical", 68, 2, 75, 2))
sketch1.addConstraint(Sketcher.Constraint("Vertical", 66, 2, 77, 2))
sketch1.addConstraint(Sketcher.Constraint("Equal", 10, 26))
sketch1.addConstraint(Sketcher.Constraint("Equal", 24, 28))
sketch1.addConstraint(Sketcher.Constraint("Equal", 22, 30))
sketch1.addConstraint(Sketcher.Constraint("Equal", 6, 40))
sketch1.addConstraint(Sketcher.Constraint("Equal", 36, 42))
sketch1.addConstraint(Sketcher.Constraint("Equal", 44, 48))
sketch1.addConstraint(Sketcher.Constraint("Equal", 19, 53))
sketch1.addConstraint(Sketcher.Constraint("Equal", 55, 57))
sketch1.addConstraint(Sketcher.Constraint("Equal", 1, 3))
sketch1.addConstraint(Sketcher.Constraint("Equal", 3, 5))
sketch1.addConstraint(Sketcher.Constraint("Equal", 77, 12))
sketch1.addConstraint(Sketcher.Constraint("Equal", 73, 25))
sketch1.addConstraint(Sketcher.Constraint("Equal", 79, 33))
sketch1.addConstraint(Sketcher.Constraint("Equal", 27, 35))
sketch1.addConstraint(Sketcher.Constraint("Equal", 11, 41))
sketch1.addConstraint(Sketcher.Constraint("Equal", 41, 43))
sketch1.addConstraint(Sketcher.Constraint("Equal", 43, 45))
sketch1.addConstraint(Sketcher.Constraint("Equal", 31, 52))
sketch1.addConstraint(Sketcher.Constraint("Equal", 39, 60))
sketch1.addConstraint(Sketcher.Constraint("Equal", 58, 62))
sketch1.addConstraint(Sketcher.Constraint("Equal", 29, 64))
sketch1.addConstraint(Sketcher.Constraint("Equal", 37, 66))
sketch1.addConstraint(Sketcher.Constraint("Equal", 68, 76))
sketch1.addConstraint(Sketcher.Constraint("DistanceX", 0, 1, 0, 2, Q("5 in")))
sketch1.addConstraint(Sketcher.Constraint("DistanceY", 1, 1, 1, 2, Q("1 in")))
sketch1.addConstraint(Sketcher.Constraint("DistanceX", 2, 1, 2, 2, Q("0.5 in")))
sketch1.addConstraint(Sketcher.Constraint("DistanceX", 20, 1, 20, 2, Q("0.2 in")))
sketch1.addConstraint(Sketcher.Constraint("DistanceX", 13, 1, 13, 2, Q("0.17 in")))
sketch1.addConstraint(Sketcher.Constraint("DistanceX", 24, 2, 24, 1, Q("1.25 in")))
sketch1.addConstraint(Sketcher.Constraint("DistanceY", 23, 1, 23, 2, Q("1.1899998 in")))
sketch1.addConstraint(Sketcher.Constraint("DistanceY", -1, 1, 0, 2, Q("1.5 in")))
sketch1.addConstraint(Sketcher.Constraint("DistanceX", 20, 2, -1, 1, Q("3.08 in")))
sketch1.addConstraint(Sketcher.Constraint("DistanceY", 60, 2, -1, 1, Q("0.88 in")))
sketch1.addConstraint(Sketcher.Constraint("DistanceY", 40, 2, -1, 1, Q("44.95114 mm")))
sketch1.addConstraint(Sketcher.Constraint("DistanceY", 52, 2, -1, 1, Q("0.50114 mm")))
sketch1.addConstraint(Sketcher.Constraint("DistanceX", -1, 1, 40, 2, Q("64.567495 mm")))
pad1 = body.newObject("PartDesign::Pad", "Pad")
pad1.Profile = sketch1
pad1.Length = Q("1 in")

doc.recompute()
